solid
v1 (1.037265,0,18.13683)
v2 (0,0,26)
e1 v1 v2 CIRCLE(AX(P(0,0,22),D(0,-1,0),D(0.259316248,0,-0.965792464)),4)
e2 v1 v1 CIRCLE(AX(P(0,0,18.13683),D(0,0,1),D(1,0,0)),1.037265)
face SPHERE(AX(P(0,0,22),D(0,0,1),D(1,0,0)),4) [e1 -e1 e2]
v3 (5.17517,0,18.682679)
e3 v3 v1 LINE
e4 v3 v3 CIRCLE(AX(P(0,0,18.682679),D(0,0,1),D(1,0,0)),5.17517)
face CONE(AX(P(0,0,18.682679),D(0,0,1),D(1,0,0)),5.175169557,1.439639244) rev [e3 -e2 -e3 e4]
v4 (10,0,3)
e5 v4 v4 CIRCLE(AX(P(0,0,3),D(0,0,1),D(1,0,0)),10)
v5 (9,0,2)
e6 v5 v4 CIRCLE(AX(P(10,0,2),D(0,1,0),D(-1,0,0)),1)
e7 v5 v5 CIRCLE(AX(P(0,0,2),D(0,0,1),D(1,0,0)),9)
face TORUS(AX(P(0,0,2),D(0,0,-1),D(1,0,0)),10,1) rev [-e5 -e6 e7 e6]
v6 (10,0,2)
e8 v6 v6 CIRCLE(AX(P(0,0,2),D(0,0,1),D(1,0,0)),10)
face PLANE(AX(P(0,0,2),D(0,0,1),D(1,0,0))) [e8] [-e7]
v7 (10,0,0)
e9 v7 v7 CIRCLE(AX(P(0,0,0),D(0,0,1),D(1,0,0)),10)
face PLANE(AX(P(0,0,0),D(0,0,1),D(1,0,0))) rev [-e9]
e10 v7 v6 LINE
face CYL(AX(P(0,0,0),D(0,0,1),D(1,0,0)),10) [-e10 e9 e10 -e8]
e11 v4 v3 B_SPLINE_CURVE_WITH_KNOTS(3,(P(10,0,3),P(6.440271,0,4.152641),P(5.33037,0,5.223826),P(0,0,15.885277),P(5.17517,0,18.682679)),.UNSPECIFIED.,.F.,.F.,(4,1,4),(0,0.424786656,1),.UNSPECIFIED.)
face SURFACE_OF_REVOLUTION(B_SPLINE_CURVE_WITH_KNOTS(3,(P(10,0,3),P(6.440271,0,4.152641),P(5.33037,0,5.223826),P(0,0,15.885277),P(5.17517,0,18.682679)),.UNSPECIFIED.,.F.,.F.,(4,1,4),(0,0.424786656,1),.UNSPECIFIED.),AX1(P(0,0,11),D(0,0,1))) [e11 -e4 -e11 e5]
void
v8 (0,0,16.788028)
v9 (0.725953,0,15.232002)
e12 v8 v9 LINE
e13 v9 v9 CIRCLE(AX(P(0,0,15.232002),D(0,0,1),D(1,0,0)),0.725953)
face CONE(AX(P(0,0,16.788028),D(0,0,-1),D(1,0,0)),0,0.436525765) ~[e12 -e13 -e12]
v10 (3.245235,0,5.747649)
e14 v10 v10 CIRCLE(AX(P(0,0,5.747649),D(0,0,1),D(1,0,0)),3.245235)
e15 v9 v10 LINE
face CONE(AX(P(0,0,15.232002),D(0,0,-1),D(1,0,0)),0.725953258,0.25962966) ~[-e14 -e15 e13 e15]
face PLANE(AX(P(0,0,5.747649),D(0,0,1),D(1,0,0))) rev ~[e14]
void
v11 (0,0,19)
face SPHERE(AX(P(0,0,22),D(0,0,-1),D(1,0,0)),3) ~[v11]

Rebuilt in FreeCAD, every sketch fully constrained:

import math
import FreeCAD as App
import Part
import Sketcher

doc = App.newDocument("Part")
params = doc.addObject("Spreadsheet::Sheet", "Params")
for row, (alias, value) in enumerate([
    ("sketch1_radius", "1 mm"),
    ("sketch1_radius2", "4 mm"),
    ("revolution_angle", "360 deg"),
], start=1):
    params.set(f"A{row}", alias)
    params.set(f"B{row}", "=" + value)
    params.setAlias(f"B{row}", alias)

body = doc.addObject("PartDesign::Body", "Body")

sketch1 = body.newObject("Sketcher::SketchObject", "Sketch")
sketch1.AttachmentSupport = (doc.getObject("XZ_Plane"), [""])
sketch1.MapMode = "FlatFace"
sketch1.addGeometry(Part.LineSegment(App.Vector(0, 16.788028, 0), App.Vector(0.725953, 15.232002, 0)), False)
sketch1.addGeometry(Part.LineSegment(App.Vector(0.725953, 15.232002, 0), App.Vector(3.245235, 5.747649, 0)), False)
sketch1.addGeometry(Part.LineSegment(App.Vector(3.245235, 5.747649, 0), App.Vector(0, 5.747649, 0)), False)
sketch1.addGeometry(Part.LineSegment(App.Vector(0, 5.747649, 0), App.Vector(0, 0, 0)), False)
sketch1.addGeometry(Part.LineSegment(App.Vector(0, 0, 0), App.Vector(10, 0, 0)), False)
sketch1.addGeometry(Part.LineSegment(App.Vector(10, 0, 0), App.Vector(10, 2, 0)), False)
sketch1.addGeometry(Part.LineSegment(App.Vector(10, 2, 0), App.Vector(9, 2, 0)), False)
sketch1.addGeometry(Part.ArcOfCircle(Part.Circle(App.Vector(10, 2, 0), App.Vector(0, 0, 1), 1), math.radians(90), math.radians(180)), False)
sketch1.addGeometry(Part.BSplineCurve([App.Vector(10, 3, 0), App.Vector(6.440271, 4.152641, 0), App.Vector(5.33037, 5.223826, 0), App.Vector(0, 15.885277, 0), App.Vector(5.17517, 18.682679, 0)], [4, 1, 4], [0, 0.424786656, 1], False, 3, [1, 1, 1, 1, 1], False), False)
sketch1.addGeometry(Part.LineSegment(App.Vector(5.17517, 18.682679, 0), App.Vector(1.037265, 18.13683, 0)), False)
sketch1.addGeometry(Part.ArcOfCircle(Part.Circle(App.Vector(0, 22, 0), App.Vector(0, 0, 1), 4), math.radians(-74.970505), math.radians(90)), False)
sketch1.addGeometry(Part.LineSegment(App.Vector(0, 26, 0), App.Vector(0, 25, 0)), False)
sketch1.addGeometry(Part.ArcOfCircle(Part.Circle(App.Vector(0, 22, 0), App.Vector(0, 0, 1), 3), math.radians(-90), math.radians(90)), False)
sketch1.addGeometry(Part.LineSegment(App.Vector(0, 19, 0), App.Vector(0, 16.788028, 0)), False)
sketch1.addConstraint(Sketcher.Constraint("Block", 8))
sketch1.addConstraint(Sketcher.Constraint("Coincident", 0, 2, 1, 1))
sketch1.addConstraint(Sketcher.Constraint("Coincident", 1, 2, 2, 1))
sketch1.addConstraint(Sketcher.Constraint("Coincident", 2, 2, 3, 1))
sketch1.addConstraint(Sketcher.Constraint("Coincident", 3, 2, 4, 1))
sketch1.addConstraint(Sketcher.Constraint("Coincident", 4, 2, 5, 1))
sketch1.addConstraint(Sketcher.Constraint("Coincident", 5, 2, 6, 1))
sketch1.addConstraint(Sketcher.Constraint("Coincident", 6, 2, 7, 2))
sketch1.addConstraint(Sketcher.Constraint("Coincident", 7, 1, 8, 1))
sketch1.addConstraint(Sketcher.Constraint("Coincident", 8, 2, 9, 1))
sketch1.addConstraint(Sketcher.Constraint("Coincident", 9, 2, 10, 1))
sketch1.addConstraint(Sketcher.Constraint("Coincident", 10, 2, 11, 1))
sketch1.addConstraint(Sketcher.Constraint("Coincident", 11, 2, 12, 2))
sketch1.addConstraint(Sketcher.Constraint("Coincident", 12, 1, 13, 1))
sketch1.addConstraint(Sketcher.Constraint("Coincident", 13, 2, 0, 1))
sketch1.addConstraint(Sketcher.Constraint("Horizontal", 2))
sketch1.addConstraint(Sketcher.Constraint("Vertical", 3))
sketch1.addConstraint(Sketcher.Constraint("Horizontal", 4))
sketch1.addConstraint(Sketcher.Constraint("Vertical", 5))
sketch1.addConstraint(Sketcher.Constraint("Horizontal", 6))
sketch1.addConstraint(Sketcher.Constraint("Vertical", 11))
sketch1.addConstraint(Sketcher.Constraint("Vertical", 13))
sketch1.addConstraint(Sketcher.Constraint("Coincident", 3, 2, -1, 1))
sketch1.addConstraint(Sketcher.Constraint("Coincident", 12, 3, 10, 3))
sketch1.addConstraint(Sketcher.Constraint("Coincident", 5, 2, 7, 3))
sketch1.addConstraint(Sketcher.Constraint("PointOnObject", 10, 3, -2))
sketch1.addConstraint(Sketcher.Constraint("PointOnObject", 10, 2, -2))
sketch1.addConstraint(Sketcher.Constraint("PointOnObject", 12, 1, -2))
sketch1.addConstraint(Sketcher.Constraint("Vertical", 5, 2, 7, 1))
sketch1.addConstraint(Sketcher.Constraint("Equal", 6, 11))
sketch1.addConstraint(Sketcher.Constraint("Radius", 7, 1.0))
sketch1.addConstraint(Sketcher.Constraint("Radius", 10, 4.0))
sketch1.addConstraint(Sketcher.Constraint("DistanceY", -1, 1, 10, 3, 22.0))
sketch1.addConstraint(Sketcher.Constraint("DistanceY", 3, 2, 3, 1, 5.747649))
sketch1.addConstraint(Sketcher.Constraint("DistanceY", 13, 2, 13, 1, 2.211972))
sketch1.addConstraint(Sketcher.Constraint("DistanceY", 13, 2, 9, 2, 1.348802))
sketch1.addConstraint(Sketcher.Constraint("Distance", 0, 1.717039))
sketch1.addConstraint(Sketcher.Constraint("DistanceX", 2, 2, 2, 1, 3.245235))
sketch1.addConstraint(Sketcher.Constraint("DistanceX", 0, 2, 1, 2, 2.519282))
sketch1.setExpression("Constraints[30]", "Params.sketch1_radius")
sketch1.setExpression("Constraints[31]", "Params.sketch1_radius2")
revolution = body.newObject("PartDesign::Revolution", "Revolution")
revolution.Profile = sketch1
revolution.ReferenceAxis = (sketch1, ["V_Axis"])
revolution.setExpression("Angle", "Params.revolution_angle")

doc.recompute()
